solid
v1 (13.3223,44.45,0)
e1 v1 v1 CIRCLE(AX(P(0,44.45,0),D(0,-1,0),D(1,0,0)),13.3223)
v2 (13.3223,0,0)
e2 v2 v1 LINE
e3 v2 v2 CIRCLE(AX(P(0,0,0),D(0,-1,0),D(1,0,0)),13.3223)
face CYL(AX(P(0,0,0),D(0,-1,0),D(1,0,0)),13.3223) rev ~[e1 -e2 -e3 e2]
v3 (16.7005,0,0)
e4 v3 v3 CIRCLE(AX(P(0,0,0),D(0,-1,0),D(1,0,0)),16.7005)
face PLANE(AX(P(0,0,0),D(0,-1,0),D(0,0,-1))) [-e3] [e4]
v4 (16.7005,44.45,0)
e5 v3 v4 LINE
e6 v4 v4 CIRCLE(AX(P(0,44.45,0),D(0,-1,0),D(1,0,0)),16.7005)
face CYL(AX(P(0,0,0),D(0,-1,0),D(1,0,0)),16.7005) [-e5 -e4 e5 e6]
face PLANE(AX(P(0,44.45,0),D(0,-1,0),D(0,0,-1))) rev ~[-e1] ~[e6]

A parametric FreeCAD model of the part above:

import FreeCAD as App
import Part
import Sketcher

V = App.Vector
Q = App.Units.Quantity

doc = App.newDocument("Part")
body = doc.addObject("PartDesign::Body", "Body")

sketch1 = body.newObject("Sketcher::SketchObject", "Sketch")
sketch1.AttachmentSupport = (doc.getObject("XZ_Plane"), [""])
sketch1.MapMode = "FlatFace"
sketch1.addGeometry([
    Part.Circle(V(0, 0, 0), V(0, 0, 1), 17),
    Part.Circle(V(0, 0, 0), V(0, 0, 1), 13),
], False)
sketch1.addConstraint([
    Sketcher.Constraint("Coincident", 0, 3, -1, 1),
    Sketcher.Constraint("Coincident", 1, 3, -1, 1),
    Sketcher.Constraint("Diameter", 0, Q("1.315 in")),
    Sketcher.Constraint("Diameter", 1, Q("1.049 in")),
])
pad1 = body.newObject("PartDesign::Pad", "Pad")
pad1.Profile = sketch1
pad1.Length = Q("1.75 in")
pad1.Reversed = True

doc.recompute()
